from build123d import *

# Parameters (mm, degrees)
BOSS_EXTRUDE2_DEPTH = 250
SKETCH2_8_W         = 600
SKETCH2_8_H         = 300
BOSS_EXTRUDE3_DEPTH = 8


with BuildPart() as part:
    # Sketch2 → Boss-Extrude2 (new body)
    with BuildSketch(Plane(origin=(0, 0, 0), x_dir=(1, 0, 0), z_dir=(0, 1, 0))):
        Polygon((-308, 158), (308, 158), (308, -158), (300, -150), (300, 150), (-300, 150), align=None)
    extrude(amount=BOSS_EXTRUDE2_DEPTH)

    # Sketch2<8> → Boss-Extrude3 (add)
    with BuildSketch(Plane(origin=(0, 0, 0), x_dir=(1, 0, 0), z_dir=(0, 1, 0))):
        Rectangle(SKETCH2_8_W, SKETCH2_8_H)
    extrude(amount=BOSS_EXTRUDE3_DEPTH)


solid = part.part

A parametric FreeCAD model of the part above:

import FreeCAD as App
import Part
import Sketcher


def add_polygon(sketch, points):
    """Adds a closed chain of lines whose ends are joined by coincident constraints."""
    first, n = sketch.GeometryCount, len(points)
    for a, b in zip(points, points[1:] + points[:1]):
        sketch.addGeometry(Part.LineSegment(App.Vector(*a, 0), App.Vector(*b, 0)), False)
    for i in range(n):
        sketch.addConstraint(Sketcher.Constraint("Coincident", first + i, 2, first + (i + 1) % n, 1))

doc = App.newDocument("Part")
params = doc.addObject("Spreadsheet::Sheet", "Params")
for row, (alias, value) in enumerate([
    ("sketch1_width", "616 mm"),
    ("sketch1_width2", "600 mm"),
    ("sketch1_height", "300 mm"),
    ("sketch1_height2", "316 mm"),
    ("pad1_length", "250 mm"),
    ("sketch2_width", "600 mm"),
    ("sketch2_height", "300 mm"),
    ("pad2_length", "8 mm"),
], start=1):
    params.set(f"A{row}", alias)
    params.set(f"B{row}", "=" + value)
    params.setAlias(f"B{row}", alias)

body = doc.addObject("PartDesign::Body", "Body")

# Sketch on XZ plane
sketch1 = body.newObject("Sketcher::SketchObject", "Sketch")
sketch1.AttachmentSupport = (doc.getObject("XZ_Plane"), [""])
sketch1.MapMode = "FlatFace"
add_polygon(sketch1, [(308, -158), (-308, -158), (-300, -150), (300, -150), (300, 150), (308, 158)])  # lines 0-5
sketch1.addConstraint([
    Sketcher.Constraint("Horizontal", 0),
    Sketcher.Constraint("Horizontal", 2),
    Sketcher.Constraint("Vertical", 3),
    Sketcher.Constraint("Vertical", 5),
    Sketcher.Constraint("Symmetric", 1, 2, 3, 2, -1, 1),
    Sketcher.Constraint("Symmetric", 0, 2, 4, 2, -1, 1),
    Sketcher.Constraint("DistanceX", 0, 2, 0, 1, 616.0),
    Sketcher.Constraint("DistanceX", 2, 1, 2, 2, 600.0),
    Sketcher.Constraint("DistanceY", 3, 1, 3, 2, 300.0),
    Sketcher.Constraint("DistanceY", 5, 2, 5, 1, 316.0),
])
sketch1.setExpression("Constraints[12]", "Params.sketch1_width")
sketch1.setExpression("Constraints[13]", "Params.sketch1_width2")
sketch1.setExpression("Constraints[14]", "Params.sketch1_height")
sketch1.setExpression("Constraints[15]", "Params.sketch1_height2")
pad1 = body.newObject("PartDesign::Pad", "Pad")
pad1.Profile = sketch1
pad1.setExpression("Length", "Params.pad1_length")
pad1.Reversed = True

# Sketch on XZ plane
sketch2 = body.newObject("Sketcher::SketchObject", "Sketch001")
sketch2.AttachmentSupport = (doc.getObject("XZ_Plane"), [""])
sketch2.MapMode = "FlatFace"
add_polygon(sketch2, [(-300, -150), (-300, 150), (300, 150), (300, -150)])  # lines 0-3
sketch2.addConstraint([
    Sketcher.Constraint("Vertical", 0),
    Sketcher.Constraint("Horizontal", 1),
    Sketcher.Constraint("Vertical", 2),
    Sketcher.Constraint("Horizontal", 3),
    Sketcher.Constraint("Symmetric", 0, 2, 2, 2, -1, 1),
    Sketcher.Constraint("DistanceX", 1, 1, 1, 2, 600.0),
    Sketcher.Constraint("DistanceY", 0, 1, 0, 2, 300.0),
])
sketch2.setExpression("Constraints[9]", "Params.sketch2_width")
sketch2.setExpression("Constraints[10]", "Params.sketch2_height")
pad2 = body.newObject("PartDesign::Pad", "Pad001")
pad2.Profile = sketch2
pad2.setExpression("Length", "Params.pad2_length")
pad2.Reversed = True

doc.recompute()
